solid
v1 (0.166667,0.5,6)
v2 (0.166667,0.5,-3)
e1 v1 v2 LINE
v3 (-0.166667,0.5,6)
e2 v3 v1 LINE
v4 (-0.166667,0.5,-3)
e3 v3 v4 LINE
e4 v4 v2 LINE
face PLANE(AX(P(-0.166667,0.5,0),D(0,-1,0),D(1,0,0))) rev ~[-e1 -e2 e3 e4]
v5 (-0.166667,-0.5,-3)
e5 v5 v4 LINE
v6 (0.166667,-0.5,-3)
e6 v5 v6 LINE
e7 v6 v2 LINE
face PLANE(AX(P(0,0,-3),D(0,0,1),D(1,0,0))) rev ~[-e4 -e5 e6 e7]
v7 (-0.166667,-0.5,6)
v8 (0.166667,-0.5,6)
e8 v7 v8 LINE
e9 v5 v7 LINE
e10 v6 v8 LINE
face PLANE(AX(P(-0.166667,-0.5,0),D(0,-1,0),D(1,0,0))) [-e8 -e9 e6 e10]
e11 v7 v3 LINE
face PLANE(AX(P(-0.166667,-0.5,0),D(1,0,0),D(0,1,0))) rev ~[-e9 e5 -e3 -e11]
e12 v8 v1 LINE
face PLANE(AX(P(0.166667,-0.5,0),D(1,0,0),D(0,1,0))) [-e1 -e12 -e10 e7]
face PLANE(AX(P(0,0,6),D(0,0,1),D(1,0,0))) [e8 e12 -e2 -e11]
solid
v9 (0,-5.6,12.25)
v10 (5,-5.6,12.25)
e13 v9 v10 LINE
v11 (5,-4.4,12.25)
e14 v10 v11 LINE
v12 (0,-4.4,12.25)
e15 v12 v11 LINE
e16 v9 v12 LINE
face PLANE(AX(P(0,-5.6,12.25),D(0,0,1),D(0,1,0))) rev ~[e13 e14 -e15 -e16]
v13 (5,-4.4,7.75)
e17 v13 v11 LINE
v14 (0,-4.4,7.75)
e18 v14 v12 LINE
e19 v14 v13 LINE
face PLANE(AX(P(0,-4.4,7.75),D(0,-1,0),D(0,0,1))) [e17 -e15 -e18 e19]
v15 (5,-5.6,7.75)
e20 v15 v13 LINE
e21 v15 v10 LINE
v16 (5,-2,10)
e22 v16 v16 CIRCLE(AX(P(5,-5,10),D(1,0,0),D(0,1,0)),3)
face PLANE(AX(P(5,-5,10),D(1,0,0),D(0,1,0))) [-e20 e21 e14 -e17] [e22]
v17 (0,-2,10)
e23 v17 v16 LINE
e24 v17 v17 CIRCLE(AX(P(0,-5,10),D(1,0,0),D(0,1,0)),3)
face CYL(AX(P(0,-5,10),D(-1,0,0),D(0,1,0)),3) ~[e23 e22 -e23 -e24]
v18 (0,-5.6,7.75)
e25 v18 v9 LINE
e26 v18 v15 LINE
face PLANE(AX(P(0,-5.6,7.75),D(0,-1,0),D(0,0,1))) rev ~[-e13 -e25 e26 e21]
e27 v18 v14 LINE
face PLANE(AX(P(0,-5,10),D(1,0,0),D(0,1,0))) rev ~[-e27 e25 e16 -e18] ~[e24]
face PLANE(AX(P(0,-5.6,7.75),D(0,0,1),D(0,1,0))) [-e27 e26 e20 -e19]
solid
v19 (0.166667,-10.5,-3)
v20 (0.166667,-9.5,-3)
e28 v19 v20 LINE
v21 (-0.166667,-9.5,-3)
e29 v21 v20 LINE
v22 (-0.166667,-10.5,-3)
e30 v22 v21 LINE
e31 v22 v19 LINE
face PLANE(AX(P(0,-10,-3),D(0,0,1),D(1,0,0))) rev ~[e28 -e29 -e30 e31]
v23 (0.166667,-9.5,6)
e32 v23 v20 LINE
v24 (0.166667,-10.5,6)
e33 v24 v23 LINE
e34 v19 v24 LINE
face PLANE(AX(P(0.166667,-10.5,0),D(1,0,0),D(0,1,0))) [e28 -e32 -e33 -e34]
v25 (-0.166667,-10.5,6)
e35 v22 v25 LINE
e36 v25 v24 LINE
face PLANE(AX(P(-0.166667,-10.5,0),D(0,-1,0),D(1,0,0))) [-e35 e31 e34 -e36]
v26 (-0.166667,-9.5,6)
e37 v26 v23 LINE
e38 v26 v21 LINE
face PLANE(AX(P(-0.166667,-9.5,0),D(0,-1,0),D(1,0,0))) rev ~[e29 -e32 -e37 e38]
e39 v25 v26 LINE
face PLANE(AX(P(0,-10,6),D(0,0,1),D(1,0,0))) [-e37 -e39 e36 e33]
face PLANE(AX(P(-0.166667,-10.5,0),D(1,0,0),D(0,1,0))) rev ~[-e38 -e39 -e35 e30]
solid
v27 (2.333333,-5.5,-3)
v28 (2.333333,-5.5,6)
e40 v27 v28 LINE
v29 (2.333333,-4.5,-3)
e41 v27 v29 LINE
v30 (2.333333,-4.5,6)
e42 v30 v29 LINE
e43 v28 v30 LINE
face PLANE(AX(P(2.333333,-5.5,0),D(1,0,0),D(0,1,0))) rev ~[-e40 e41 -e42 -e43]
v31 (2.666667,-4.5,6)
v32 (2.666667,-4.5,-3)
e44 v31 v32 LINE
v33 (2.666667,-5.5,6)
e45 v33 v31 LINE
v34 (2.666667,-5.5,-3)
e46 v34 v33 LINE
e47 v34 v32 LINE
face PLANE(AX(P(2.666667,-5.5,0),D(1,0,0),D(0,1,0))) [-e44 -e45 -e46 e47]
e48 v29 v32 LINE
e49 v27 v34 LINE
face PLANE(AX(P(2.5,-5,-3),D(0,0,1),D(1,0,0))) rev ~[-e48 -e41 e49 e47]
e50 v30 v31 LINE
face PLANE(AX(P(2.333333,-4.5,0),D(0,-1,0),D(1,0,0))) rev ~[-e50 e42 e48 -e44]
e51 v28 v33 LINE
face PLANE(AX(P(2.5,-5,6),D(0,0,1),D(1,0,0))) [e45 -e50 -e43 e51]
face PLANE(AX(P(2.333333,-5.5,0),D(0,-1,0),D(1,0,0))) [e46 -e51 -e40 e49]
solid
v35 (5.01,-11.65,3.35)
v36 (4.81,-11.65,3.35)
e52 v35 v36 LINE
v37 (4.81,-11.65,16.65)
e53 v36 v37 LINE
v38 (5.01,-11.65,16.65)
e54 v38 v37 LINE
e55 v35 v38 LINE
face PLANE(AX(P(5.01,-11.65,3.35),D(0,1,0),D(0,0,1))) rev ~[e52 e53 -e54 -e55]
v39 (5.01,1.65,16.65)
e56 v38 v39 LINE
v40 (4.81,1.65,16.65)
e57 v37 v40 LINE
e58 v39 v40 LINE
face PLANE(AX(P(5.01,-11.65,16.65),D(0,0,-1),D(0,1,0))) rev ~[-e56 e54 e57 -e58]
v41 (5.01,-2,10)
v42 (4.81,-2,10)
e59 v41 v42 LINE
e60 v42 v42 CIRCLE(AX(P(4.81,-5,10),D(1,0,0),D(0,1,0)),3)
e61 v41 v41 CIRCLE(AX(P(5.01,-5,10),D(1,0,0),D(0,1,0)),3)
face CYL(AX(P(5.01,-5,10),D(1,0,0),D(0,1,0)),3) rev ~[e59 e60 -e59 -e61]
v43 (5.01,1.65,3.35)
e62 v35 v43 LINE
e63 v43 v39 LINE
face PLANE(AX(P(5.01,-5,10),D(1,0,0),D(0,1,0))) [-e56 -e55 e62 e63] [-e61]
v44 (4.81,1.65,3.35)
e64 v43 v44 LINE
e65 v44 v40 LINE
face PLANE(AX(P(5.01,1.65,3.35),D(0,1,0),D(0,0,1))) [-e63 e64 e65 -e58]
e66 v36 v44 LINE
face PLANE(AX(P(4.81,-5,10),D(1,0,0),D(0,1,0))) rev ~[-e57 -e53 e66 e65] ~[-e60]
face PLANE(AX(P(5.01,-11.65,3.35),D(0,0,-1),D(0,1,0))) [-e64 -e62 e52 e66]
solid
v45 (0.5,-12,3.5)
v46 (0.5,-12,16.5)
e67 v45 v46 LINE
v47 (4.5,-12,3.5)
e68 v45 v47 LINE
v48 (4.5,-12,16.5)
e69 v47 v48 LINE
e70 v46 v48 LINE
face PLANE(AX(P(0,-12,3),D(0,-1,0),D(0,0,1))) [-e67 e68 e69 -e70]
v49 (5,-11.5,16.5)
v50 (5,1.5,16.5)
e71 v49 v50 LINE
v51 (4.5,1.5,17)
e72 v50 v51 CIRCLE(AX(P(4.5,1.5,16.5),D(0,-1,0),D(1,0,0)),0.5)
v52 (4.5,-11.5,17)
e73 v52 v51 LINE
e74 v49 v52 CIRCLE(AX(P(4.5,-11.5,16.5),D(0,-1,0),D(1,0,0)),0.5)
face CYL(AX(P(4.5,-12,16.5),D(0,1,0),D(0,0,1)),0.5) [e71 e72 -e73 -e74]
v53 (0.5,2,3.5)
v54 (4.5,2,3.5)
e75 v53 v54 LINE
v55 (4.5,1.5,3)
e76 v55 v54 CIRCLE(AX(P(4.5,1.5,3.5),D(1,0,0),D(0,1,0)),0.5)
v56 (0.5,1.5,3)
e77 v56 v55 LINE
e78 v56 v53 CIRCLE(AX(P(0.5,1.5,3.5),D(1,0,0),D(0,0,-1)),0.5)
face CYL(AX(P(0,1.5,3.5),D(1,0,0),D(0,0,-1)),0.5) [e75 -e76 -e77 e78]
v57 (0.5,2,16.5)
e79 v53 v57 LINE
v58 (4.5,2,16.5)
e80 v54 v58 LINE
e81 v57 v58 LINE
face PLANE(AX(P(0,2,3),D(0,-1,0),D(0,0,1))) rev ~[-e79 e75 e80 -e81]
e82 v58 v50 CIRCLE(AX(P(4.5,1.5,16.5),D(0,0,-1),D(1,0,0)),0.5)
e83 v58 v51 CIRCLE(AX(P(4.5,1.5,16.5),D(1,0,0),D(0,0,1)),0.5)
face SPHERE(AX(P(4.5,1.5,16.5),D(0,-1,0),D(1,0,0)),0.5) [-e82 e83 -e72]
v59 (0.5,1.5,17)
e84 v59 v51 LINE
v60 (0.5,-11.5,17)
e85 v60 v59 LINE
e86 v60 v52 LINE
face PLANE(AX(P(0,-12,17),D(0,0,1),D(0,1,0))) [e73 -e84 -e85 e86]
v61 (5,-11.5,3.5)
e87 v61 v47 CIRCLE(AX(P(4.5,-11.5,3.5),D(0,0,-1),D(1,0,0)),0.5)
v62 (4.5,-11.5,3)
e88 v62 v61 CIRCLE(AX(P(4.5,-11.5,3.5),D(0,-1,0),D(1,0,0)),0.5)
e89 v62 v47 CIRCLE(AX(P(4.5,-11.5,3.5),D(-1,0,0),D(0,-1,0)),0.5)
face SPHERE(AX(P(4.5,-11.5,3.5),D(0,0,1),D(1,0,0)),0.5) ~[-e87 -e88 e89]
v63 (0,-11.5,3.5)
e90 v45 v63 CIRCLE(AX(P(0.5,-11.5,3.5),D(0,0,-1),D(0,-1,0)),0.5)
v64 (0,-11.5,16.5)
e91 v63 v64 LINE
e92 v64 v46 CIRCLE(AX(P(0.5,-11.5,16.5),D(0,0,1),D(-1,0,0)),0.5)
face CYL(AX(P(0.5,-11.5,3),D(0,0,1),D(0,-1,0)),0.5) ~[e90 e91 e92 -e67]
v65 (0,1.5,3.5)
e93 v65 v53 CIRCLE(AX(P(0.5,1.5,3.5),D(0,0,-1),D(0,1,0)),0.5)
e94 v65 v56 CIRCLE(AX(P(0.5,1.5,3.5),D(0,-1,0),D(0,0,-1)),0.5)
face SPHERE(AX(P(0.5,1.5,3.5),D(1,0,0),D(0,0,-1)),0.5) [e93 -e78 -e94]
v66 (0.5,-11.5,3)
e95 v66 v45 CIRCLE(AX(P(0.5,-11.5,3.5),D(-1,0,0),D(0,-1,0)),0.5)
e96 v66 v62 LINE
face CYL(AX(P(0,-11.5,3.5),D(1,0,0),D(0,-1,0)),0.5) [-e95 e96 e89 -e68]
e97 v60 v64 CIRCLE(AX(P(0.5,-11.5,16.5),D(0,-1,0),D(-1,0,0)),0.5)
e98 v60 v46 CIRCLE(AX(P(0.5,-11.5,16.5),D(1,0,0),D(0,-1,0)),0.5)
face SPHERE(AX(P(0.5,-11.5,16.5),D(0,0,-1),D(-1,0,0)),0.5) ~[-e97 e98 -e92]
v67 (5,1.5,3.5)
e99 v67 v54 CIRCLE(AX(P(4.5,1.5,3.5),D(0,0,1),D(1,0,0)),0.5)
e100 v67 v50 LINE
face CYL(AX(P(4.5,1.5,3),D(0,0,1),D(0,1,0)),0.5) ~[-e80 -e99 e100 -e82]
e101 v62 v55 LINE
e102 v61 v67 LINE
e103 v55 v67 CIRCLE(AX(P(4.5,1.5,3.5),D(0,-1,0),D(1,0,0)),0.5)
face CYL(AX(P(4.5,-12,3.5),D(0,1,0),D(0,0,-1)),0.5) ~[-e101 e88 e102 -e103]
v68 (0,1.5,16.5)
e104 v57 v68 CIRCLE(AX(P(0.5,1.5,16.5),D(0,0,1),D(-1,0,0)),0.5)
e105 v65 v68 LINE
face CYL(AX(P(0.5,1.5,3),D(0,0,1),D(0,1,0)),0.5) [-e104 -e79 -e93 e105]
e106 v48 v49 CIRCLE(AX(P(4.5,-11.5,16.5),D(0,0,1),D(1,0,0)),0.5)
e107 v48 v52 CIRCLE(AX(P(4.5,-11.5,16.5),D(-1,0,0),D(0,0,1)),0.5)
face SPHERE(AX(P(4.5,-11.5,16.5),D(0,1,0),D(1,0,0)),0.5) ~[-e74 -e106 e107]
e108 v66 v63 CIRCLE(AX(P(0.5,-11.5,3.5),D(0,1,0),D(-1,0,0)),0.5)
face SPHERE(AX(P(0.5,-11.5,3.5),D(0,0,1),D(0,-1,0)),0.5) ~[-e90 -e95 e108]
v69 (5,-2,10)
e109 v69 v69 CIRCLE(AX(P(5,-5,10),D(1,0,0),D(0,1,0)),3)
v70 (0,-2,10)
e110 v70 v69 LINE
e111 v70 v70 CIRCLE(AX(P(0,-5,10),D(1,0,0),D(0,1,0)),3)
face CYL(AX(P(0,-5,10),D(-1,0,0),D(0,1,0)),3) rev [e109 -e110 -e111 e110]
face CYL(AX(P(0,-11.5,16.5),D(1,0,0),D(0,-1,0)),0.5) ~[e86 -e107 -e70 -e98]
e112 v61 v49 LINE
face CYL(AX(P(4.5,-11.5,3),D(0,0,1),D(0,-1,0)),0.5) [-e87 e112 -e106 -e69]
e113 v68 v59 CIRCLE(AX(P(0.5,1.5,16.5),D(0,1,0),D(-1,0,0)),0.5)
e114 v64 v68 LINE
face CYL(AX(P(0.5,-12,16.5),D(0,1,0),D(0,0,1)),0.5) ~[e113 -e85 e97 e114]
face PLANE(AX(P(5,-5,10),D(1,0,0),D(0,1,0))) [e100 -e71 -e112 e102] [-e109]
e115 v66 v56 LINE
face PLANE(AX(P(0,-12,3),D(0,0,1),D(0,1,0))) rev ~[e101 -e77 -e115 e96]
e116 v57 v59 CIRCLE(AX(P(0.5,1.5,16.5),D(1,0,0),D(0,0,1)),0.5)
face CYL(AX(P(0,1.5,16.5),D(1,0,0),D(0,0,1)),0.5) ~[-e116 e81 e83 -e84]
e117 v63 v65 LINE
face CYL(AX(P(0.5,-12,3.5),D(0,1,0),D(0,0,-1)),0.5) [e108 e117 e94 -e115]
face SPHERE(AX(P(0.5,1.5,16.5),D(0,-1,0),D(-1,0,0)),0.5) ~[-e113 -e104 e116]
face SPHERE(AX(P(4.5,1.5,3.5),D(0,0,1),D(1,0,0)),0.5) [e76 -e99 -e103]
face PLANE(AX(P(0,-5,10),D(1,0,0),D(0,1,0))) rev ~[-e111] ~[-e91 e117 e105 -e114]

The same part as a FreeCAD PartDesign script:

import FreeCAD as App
import Part
import Sketcher
Q = App.Units.Quantity


def edges_at(feature, points):
    """Names of the edges that pass closest to the given points."""
    edges = feature.Shape.Edges
    near = lambda p: min(range(len(edges)), key=lambda i: edges[i].distToShape(Part.Vertex(*p))[0])
    return sorted({f"Edge{near(p) + 1}" for p in points})

doc = App.newDocument("Part")
params = doc.addObject("Spreadsheet::Sheet", "Params")
for row, (alias, value) in enumerate([
    ("sketch1_diameter", "6 mm"),
    ("sketch1_width", "1.2 mm"),
    ("sketch1_height", "4.5 mm"),
    ("pad1_length", "5 mm"),
    ("sketch2_height", "1 mm"),
    ("pad2_length", "6 mm"),
    ("pad2_length2", "3 mm"),
    ("sketch3_diameter", "6 mm"),
    ("sketch3_width", "13.3 mm"),
    ("pad3_length", "0.2 mm"),
    ("sketch4_diameter", "6 mm"),
    ("sketch4_width", "14 mm"),
    ("pad4_length", "5 mm"),
    ("fillet_radius", "0.5 mm"),
], start=1):
    params.set(f"A{row}", alias)
    params.set(f"B{row}", "=" + value)
    params.setAlias(f"B{row}", alias)

body = doc.addObject("PartDesign::Body", "Body")

sketch1 = doc.addObject("Sketcher::SketchObject", "Sketch")
body.addObject(sketch1)
sketch1.AttachmentSupport = (doc.YZ_Plane, [""])
sketch1.MapMode = "FlatFace"
sketch1.addGeometry(Part.Circle(App.Vector(-5, 10, 0), App.Vector(0, 0, 1), 3), False)
sketch1.addGeometry(Part.LineSegment(App.Vector(-4.4, 7.8, 0), App.Vector(-5.6, 7.8, 0)), False)
sketch1.addGeometry(Part.LineSegment(App.Vector(-5.6, 7.8, 0), App.Vector(-5.6, 12.2, 0)), False)
sketch1.addGeometry(Part.LineSegment(App.Vector(-5.6, 12.2, 0), App.Vector(-4.4, 12.2, 0)), False)
sketch1.addGeometry(Part.LineSegment(App.Vector(-4.4, 12.2, 0), App.Vector(-4.4, 7.8, 0)), False)
sketch1.addConstraint(Sketcher.Constraint("Coincident", 1, 2, 2, 1))
sketch1.addConstraint(Sketcher.Constraint("Coincident", 2, 2, 3, 1))
sketch1.addConstraint(Sketcher.Constraint("Coincident", 3, 2, 4, 1))
sketch1.addConstraint(Sketcher.Constraint("Coincident", 4, 2, 1, 1))
sketch1.addConstraint(Sketcher.Constraint("Horizontal", 1))
sketch1.addConstraint(Sketcher.Constraint("Vertical", 2))
sketch1.addConstraint(Sketcher.Constraint("Horizontal", 3))
sketch1.addConstraint(Sketcher.Constraint("Vertical", 4))
sketch1.addConstraint(Sketcher.Constraint("Diameter", 0, Q("6 mm")))
sketch1.addConstraint(Sketcher.Constraint("DistanceX", 1, 2, 1, 1, Q("1.2 mm")))
sketch1.addConstraint(Sketcher.Constraint("DistanceY", 2, 1, 2, 2, Q("4.5 mm")))
sketch1.addConstraint(Sketcher.Constraint("DistanceX", 0, 3, -1, 1, Q("5 mm")))
sketch1.addConstraint(Sketcher.Constraint("DistanceY", -1, 1, 0, 3, Q("10 mm")))
sketch1.addConstraint(Sketcher.Constraint("DistanceX", 1, 2, -1, 1, Q("5.6 mm")))
sketch1.addConstraint(Sketcher.Constraint("DistanceY", -1, 1, 1, 2, Q("7.75 mm")))
sketch1.setExpression("Constraints[8]", "Params.sketch1_diameter")
sketch1.setExpression("Constraints[9]", "Params.sketch1_width")
sketch1.setExpression("Constraints[10]", "Params.sketch1_height")
pad1 = doc.addObject("PartDesign::Pad", "Pad")
body.addObject(pad1)
pad1.Profile = sketch1
pad1.setExpression("Length", "Params.pad1_length")
body2 = doc.addObject("PartDesign::Body", "Body001")
body2.AllowCompound = True

sketch2 = doc.addObject("Sketcher::SketchObject", "Sketch001")
body2.addObject(sketch2)
sketch2.AttachmentSupport = (doc.getObject("XY_Plane001"), [""])
sketch2.MapMode = "FlatFace"
sketch2.addGeometry(Part.LineSegment(App.Vector(-0.17, 0.5, 0), App.Vector(-0.17, -0.5, 0)), False)
sketch2.addGeometry(Part.LineSegment(App.Vector(-0.17, -0.5, 0), App.Vector(0.17, -0.5, 0)), False)
sketch2.addGeometry(Part.LineSegment(App.Vector(0.17, -0.5, 0), App.Vector(0.17, 0.5, 0)), False)
sketch2.addGeometry(Part.LineSegment(App.Vector(0.17, 0.5, 0), App.Vector(-0.17, 0.5, 0)), False)
sketch2.addGeometry(Part.LineSegment(App.Vector(2.33, -4.5, 0), App.Vector(2.33, -5.5, 0)), False)
sketch2.addGeometry(Part.LineSegment(App.Vector(2.33, -5.5, 0), App.Vector(2.67, -5.5, 0)), False)
sketch2.addGeometry(Part.LineSegment(App.Vector(2.67, -5.5, 0), App.Vector(2.67, -4.5, 0)), False)
sketch2.addGeometry(Part.LineSegment(App.Vector(2.67, -4.5, 0), App.Vector(2.33, -4.5, 0)), False)
sketch2.addGeometry(Part.LineSegment(App.Vector(-0.17, -9.5, 0), App.Vector(-0.17, -10.5, 0)), False)
sketch2.addGeometry(Part.LineSegment(App.Vector(-0.17, -10.5, 0), App.Vector(0.17, -10.5, 0)), False)
sketch2.addGeometry(Part.LineSegment(App.Vector(0.17, -10.5, 0), App.Vector(0.17, -9.5, 0)), False)
sketch2.addGeometry(Part.LineSegment(App.Vector(0.17, -9.5, 0), App.Vector(-0.17, -9.5, 0)), False)
sketch2.addConstraint(Sketcher.Constraint("Coincident", 0, 2, 1, 1))
sketch2.addConstraint(Sketcher.Constraint("Coincident", 1, 2, 2, 1))
sketch2.addConstraint(Sketcher.Constraint("Coincident", 2, 2, 3, 1))
sketch2.addConstraint(Sketcher.Constraint("Coincident", 3, 2, 0, 1))
sketch2.addConstraint(Sketcher.Constraint("Coincident", 4, 2, 5, 1))
sketch2.addConstraint(Sketcher.Constraint("Coincident", 5, 2, 6, 1))
sketch2.addConstraint(Sketcher.Constraint("Coincident", 6, 2, 7, 1))
sketch2.addConstraint(Sketcher.Constraint("Coincident", 7, 2, 4, 1))
sketch2.addConstraint(Sketcher.Constraint("Coincident", 8, 2, 9, 1))
sketch2.addConstraint(Sketcher.Constraint("Coincident", 9, 2, 10, 1))
sketch2.addConstraint(Sketcher.Constraint("Coincident", 10, 2, 11, 1))
sketch2.addConstraint(Sketcher.Constraint("Coincident", 11, 2, 8, 1))
sketch2.addConstraint(Sketcher.Constraint("Vertical", 0))
sketch2.addConstraint(Sketcher.Constraint("Horizontal", 1))
sketch2.addConstraint(Sketcher.Constraint("Vertical", 2))
sketch2.addConstraint(Sketcher.Constraint("Horizontal", 3))
sketch2.addConstraint(Sketcher.Constraint("Vertical", 4))
sketch2.addConstraint(Sketcher.Constraint("Horizontal", 5))
sketch2.addConstraint(Sketcher.Constraint("Vertical", 6))
sketch2.addConstraint(Sketcher.Constraint("Horizontal", 7))
sketch2.addConstraint(Sketcher.Constraint("Vertical", 8))
sketch2.addConstraint(Sketcher.Constraint("Horizontal", 9))
sketch2.addConstraint(Sketcher.Constraint("Vertical", 10))
sketch2.addConstraint(Sketcher.Constraint("Horizontal", 11))
sketch2.addConstraint(Sketcher.Constraint("Symmetric", 0, 2, 2, 2, -1, 1))
sketch2.addConstraint(Sketcher.Constraint("Vertical", 3, 2, 8, 2))
sketch2.addConstraint(Sketcher.Constraint("Vertical", 2, 2, 9, 2))
sketch2.addConstraint(Sketcher.Constraint("Equal", 3, 5))
sketch2.addConstraint(Sketcher.Constraint("Equal", 2, 4))
sketch2.addConstraint(Sketcher.Constraint("Equal", 6, 8))
sketch2.addConstraint(Sketcher.Constraint("DistanceY", 0, 2, 0, 1, Q("1 mm")))
sketch2.addConstraint(Sketcher.Constraint("DistanceY", 4, 2, 1, 2, Q("5 mm")))
sketch2.addConstraint(Sketcher.Constraint("DistanceY", 8, 2, 4, 2, Q("5 mm")))
sketch2.addConstraint(Sketcher.Constraint("DistanceX", 0, 2, 4, 2, Q("2.5 mm")))
sketch2.addConstraint(Sketcher.Constraint("DistanceX", 1, 1, 1, 2, Q("0.333334 mm")))
sketch2.setExpression("Constraints[30]", "Params.sketch2_height")
pad2 = doc.addObject("PartDesign::Pad", "Pad001")
body2.addObject(pad2)
pad2.Profile = sketch2
pad2.Type = "TwoLengths"
pad2.setExpression("Length", "Params.pad2_length")
pad2.setExpression("Length2", "Params.pad2_length2")
body3 = doc.addObject("PartDesign::Body", "Body002")

sketch3 = doc.addObject("Sketcher::SketchObject", "Sketch002")
body3.addObject(sketch3)
sketch3.AttachmentSupport = (doc.getObject("YZ_Plane002"), [""])
sketch3.MapMode = "FlatFace"
sketch3.AttachmentOffset = App.Placement(App.Vector(0, 0, 5.01), App.Rotation())
sketch3.addGeometry(Part.LineSegment(App.Vector(-11.7, 16.6, 0), App.Vector(-11.7, 3.4, 0)), False)
sketch3.addGeometry(Part.LineSegment(App.Vector(-11.7, 3.4, 0), App.Vector(1.6, 3.4, 0)), False)
sketch3.addGeometry(Part.LineSegment(App.Vector(1.6, 3.4, 0), App.Vector(1.6, 16.6, 0)), False)
sketch3.addGeometry(Part.LineSegment(App.Vector(1.6, 16.6, 0), App.Vector(-11.7, 16.6, 0)), False)
sketch3.addGeometry(Part.Circle(App.Vector(-5, 10, 0), App.Vector(0, 0, 1), 3), False)
sketch3.addConstraint(Sketcher.Constraint("Coincident", 0, 2, 1, 1))
sketch3.addConstraint(Sketcher.Constraint("Coincident", 1, 2, 2, 1))
sketch3.addConstraint(Sketcher.Constraint("Coincident", 2, 2, 3, 1))
sketch3.addConstraint(Sketcher.Constraint("Coincident", 3, 2, 0, 1))
sketch3.addConstraint(Sketcher.Constraint("Vertical", 0))
sketch3.addConstraint(Sketcher.Constraint("Horizontal", 1))
sketch3.addConstraint(Sketcher.Constraint("Vertical", 2))
sketch3.addConstraint(Sketcher.Constraint("Horizontal", 3))
sketch3.addConstraint(Sketcher.Constraint("Equal", 3, 0))
sketch3.addConstraint(Sketcher.Constraint("Diameter", 4, Q("6 mm")))
sketch3.addConstraint(Sketcher.Constraint("DistanceX", 1, 1, 1, 2, Q("13.3 mm")))
sketch3.addConstraint(Sketcher.Constraint("DistanceX", 4, 3, -1, 1, Q("5 mm")))
sketch3.addConstraint(Sketcher.Constraint("DistanceY", -1, 1, 4, 3, Q("10 mm")))
sketch3.addConstraint(Sketcher.Constraint("DistanceX", 0, 2, -1, 1, Q("11.65 mm")))
sketch3.addConstraint(Sketcher.Constraint("DistanceY", -1, 1, 0, 2, Q("3.35 mm")))
sketch3.setExpression("Constraints[9]", "Params.sketch3_diameter")
sketch3.setExpression("Constraints[10]", "Params.sketch3_width")
pad3 = doc.addObject("PartDesign::Pad", "Pad002")
body3.addObject(pad3)
pad3.Profile = sketch3
pad3.setExpression("Length", "Params.pad3_length")
pad3.Reversed = True
body4 = doc.addObject("PartDesign::Body", "Body003")

sketch4 = doc.addObject("Sketcher::SketchObject", "Sketch003")
body4.addObject(sketch4)
sketch4.AttachmentSupport = (doc.getObject("YZ_Plane003"), [""])
sketch4.MapMode = "FlatFace"
sketch4.addGeometry(Part.LineSegment(App.Vector(-12, 17, 0), App.Vector(-12, 3, 0)), False)
sketch4.addGeometry(Part.LineSegment(App.Vector(-12, 3, 0), App.Vector(2, 3, 0)), False)
sketch4.addGeometry(Part.LineSegment(App.Vector(2, 3, 0), App.Vector(2, 17, 0)), False)
sketch4.addGeometry(Part.LineSegment(App.Vector(2, 17, 0), App.Vector(-12, 17, 0)), False)
sketch4.addGeometry(Part.Circle(App.Vector(-5, 10, 0), App.Vector(0, 0, 1), 3), False)
sketch4.addConstraint(Sketcher.Constraint("Coincident", 0, 2, 1, 1))
sketch4.addConstraint(Sketcher.Constraint("Coincident", 1, 2, 2, 1))
sketch4.addConstraint(Sketcher.Constraint("Coincident", 2, 2, 3, 1))
sketch4.addConstraint(Sketcher.Constraint("Coincident", 3, 2, 0, 1))
sketch4.addConstraint(Sketcher.Constraint("Vertical", 0))
sketch4.addConstraint(Sketcher.Constraint("Horizontal", 1))
sketch4.addConstraint(Sketcher.Constraint("Vertical", 2))
sketch4.addConstraint(Sketcher.Constraint("Horizontal", 3))
sketch4.addConstraint(Sketcher.Constraint("Equal", 3, 0))
sketch4.addConstraint(Sketcher.Constraint("Diameter", 4, Q("6 mm")))
sketch4.addConstraint(Sketcher.Constraint("DistanceX", 1, 1, 1, 2, Q("14 mm")))
sketch4.addConstraint(Sketcher.Constraint("DistanceX", 4, 3, -1, 1, Q("5 mm")))
sketch4.addConstraint(Sketcher.Constraint("DistanceY", -1, 1, 4, 3, Q("10 mm")))
sketch4.addConstraint(Sketcher.Constraint("DistanceX", 0, 2, -1, 1, Q("12 mm")))
sketch4.addConstraint(Sketcher.Constraint("DistanceY", -1, 1, 0, 2, Q("3 mm")))
sketch4.setExpression("Constraints[9]", "Params.sketch4_diameter")
sketch4.setExpression("Constraints[10]", "Params.sketch4_width")
pad4 = doc.addObject("PartDesign::Pad", "Pad003")
body4.addObject(pad4)
pad4.Profile = sketch4
pad4.setExpression("Length", "Params.pad4_length")
doc.recompute()

fillet = doc.addObject("PartDesign::Fillet", "Fillet")
body4.addObject(fillet)
fillet.Base = (pad4, edges_at(pad4, [
    (0, -12, 10),
    (0, -5, 17),
    (5, -5, 17),
    (5, -12, 10),
    (5, 2, 10),
    (5, -5, 3),
    (2.5, -12, 17),
    (2.5, -12, 3),
    (2.5, 2, 3),
    (0, -5, 3),
    (0, 2, 10),
    (2.5, 2, 17),
]))
fillet.setExpression("Radius", "Params.fillet_radius")

doc.recompute()
